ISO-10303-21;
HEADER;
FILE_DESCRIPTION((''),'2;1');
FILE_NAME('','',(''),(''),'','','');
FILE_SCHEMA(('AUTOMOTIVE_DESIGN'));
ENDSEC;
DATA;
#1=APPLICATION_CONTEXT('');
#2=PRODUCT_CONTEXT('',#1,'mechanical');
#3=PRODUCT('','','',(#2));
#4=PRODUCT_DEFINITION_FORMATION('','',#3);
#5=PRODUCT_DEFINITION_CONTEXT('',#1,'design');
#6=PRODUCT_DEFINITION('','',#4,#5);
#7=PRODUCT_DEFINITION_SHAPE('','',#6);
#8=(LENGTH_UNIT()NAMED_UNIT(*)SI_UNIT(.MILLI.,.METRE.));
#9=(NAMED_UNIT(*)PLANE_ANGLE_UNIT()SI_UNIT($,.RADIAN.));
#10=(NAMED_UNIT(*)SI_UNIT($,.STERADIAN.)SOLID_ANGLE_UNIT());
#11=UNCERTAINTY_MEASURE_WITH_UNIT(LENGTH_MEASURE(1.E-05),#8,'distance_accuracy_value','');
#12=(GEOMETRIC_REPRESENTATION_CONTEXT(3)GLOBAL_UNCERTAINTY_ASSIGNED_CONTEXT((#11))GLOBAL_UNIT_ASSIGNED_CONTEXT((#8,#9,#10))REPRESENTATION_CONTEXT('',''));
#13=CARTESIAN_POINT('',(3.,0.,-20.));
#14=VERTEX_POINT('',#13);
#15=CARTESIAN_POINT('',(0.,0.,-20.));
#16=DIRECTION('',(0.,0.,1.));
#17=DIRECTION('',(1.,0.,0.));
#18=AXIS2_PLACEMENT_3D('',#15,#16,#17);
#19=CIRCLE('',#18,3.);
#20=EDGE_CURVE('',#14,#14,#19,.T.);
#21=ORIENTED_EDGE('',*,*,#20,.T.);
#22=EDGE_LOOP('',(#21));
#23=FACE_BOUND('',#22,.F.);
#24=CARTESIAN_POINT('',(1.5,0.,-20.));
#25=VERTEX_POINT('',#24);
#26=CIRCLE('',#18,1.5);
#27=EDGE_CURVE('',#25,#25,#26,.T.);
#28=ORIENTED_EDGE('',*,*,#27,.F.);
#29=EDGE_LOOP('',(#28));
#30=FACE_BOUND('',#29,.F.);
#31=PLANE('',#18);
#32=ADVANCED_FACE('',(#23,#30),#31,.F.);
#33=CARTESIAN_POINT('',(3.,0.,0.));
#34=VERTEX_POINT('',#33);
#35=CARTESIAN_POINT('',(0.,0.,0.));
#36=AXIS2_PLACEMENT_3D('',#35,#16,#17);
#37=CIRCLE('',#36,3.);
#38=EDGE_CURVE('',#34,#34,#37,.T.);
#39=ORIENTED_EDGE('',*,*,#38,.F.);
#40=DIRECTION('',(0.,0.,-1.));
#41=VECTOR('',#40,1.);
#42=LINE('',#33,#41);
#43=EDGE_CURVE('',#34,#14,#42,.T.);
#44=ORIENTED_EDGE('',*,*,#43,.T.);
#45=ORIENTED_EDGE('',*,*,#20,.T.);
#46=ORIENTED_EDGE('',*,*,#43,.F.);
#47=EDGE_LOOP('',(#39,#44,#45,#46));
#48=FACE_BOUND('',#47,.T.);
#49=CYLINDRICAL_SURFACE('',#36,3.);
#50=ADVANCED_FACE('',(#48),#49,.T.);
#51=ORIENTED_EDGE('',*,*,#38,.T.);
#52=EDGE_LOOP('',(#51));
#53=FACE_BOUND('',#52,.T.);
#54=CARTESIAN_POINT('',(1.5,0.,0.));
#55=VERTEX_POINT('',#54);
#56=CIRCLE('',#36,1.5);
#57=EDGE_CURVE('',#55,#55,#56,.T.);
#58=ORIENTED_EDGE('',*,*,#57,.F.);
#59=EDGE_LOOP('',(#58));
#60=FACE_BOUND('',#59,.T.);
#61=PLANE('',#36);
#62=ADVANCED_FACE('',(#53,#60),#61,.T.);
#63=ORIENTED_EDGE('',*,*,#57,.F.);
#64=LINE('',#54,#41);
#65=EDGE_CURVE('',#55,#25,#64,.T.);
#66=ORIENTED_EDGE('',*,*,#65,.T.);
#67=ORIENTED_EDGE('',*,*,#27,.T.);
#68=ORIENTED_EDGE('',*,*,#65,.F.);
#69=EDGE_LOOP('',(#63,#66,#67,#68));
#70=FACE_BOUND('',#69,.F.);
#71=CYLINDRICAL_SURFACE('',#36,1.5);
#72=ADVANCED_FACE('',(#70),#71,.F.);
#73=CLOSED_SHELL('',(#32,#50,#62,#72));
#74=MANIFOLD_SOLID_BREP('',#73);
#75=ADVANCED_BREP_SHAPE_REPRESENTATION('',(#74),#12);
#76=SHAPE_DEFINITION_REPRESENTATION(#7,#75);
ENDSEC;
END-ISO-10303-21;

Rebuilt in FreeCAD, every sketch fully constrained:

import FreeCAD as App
import Part
import Sketcher

V = App.Vector

doc = App.newDocument("Part")
params = doc.addObject("Spreadsheet::Sheet", "Params")
for row, (alias, value) in enumerate([
    ("sketch1_diameter", "6 mm"),
    ("sketch1_diameter2", "3 mm"),
    ("pad1_length", "20 mm"),
], start=1):
    params.set(f"A{row}", alias)
    params.set(f"B{row}", "=" + value)
    params.setAlias(f"B{row}", alias)

body = doc.addObject("PartDesign::Body", "Body")

# Sketch on XY plane
sketch1 = body.newObject("Sketcher::SketchObject", "Sketch")
sketch1.AttachmentSupport = (doc.getObject("XY_Plane"), [""])
sketch1.MapMode = "FlatFace"
sketch1.addGeometry(Part.Circle(V(0, 0, 0), V(0, 0, 1), 3), False)
sketch1.addGeometry(Part.Circle(V(0, 0, 0), V(0, 0, 1), 1.5), False)
sketch1.addConstraint(Sketcher.Constraint("Coincident", 0, 3, -1, 1))
sketch1.addConstraint(Sketcher.Constraint("Coincident", 1, 3, -1, 1))
sketch1.addConstraint(Sketcher.Constraint("Diameter", 0, 6.0))
sketch1.addConstraint(Sketcher.Constraint("Diameter", 1, 3.0))
sketch1.setExpression("Constraints[2]", "Params.sketch1_diameter")
sketch1.setExpression("Constraints[3]", "Params.sketch1_diameter2")
pad1 = body.newObject("PartDesign::Pad", "Pad")
pad1.Profile = sketch1
pad1.setExpression("Length", "Params.pad1_length")
pad1.Reversed = True

doc.recompute()
